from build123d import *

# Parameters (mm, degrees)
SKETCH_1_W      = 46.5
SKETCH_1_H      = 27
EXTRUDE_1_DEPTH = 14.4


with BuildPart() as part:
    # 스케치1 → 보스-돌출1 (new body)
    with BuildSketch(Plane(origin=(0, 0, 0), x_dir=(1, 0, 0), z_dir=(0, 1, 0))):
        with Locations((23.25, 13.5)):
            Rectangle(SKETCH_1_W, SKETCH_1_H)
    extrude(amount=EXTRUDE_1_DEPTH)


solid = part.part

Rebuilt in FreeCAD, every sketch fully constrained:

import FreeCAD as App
import Part
import Sketcher
from FreeCAD import Vector


def add_polygon(sketch, points):
    """Adds a closed chain of lines whose ends are joined by coincident constraints."""
    first, n = sketch.GeometryCount, len(points)
    for a, b in zip(points, points[1:] + points[:1]):
        sketch.addGeometry(Part.LineSegment(App.Vector(*a, 0), App.Vector(*b, 0)), False)
    for i in range(n):
        sketch.addConstraint(Sketcher.Constraint("Coincident", first + i, 2, first + (i + 1) % n, 1))

doc = App.newDocument("Part")
body = doc.addObject("PartDesign::Body", "Body")

# Sketch on XZ plane
sketch1 = body.newObject("Sketcher::SketchObject", "Sketch")
sketch1.AttachmentSupport = (doc.getObject("XZ_Plane"), [""])
sketch1.MapMode = "FlatFace"
add_polygon(sketch1, [(0, -27), (0, 0), (46.5, 0), (46.5, -27)])  # lines 0-3
sketch1.addConstraint([
    Sketcher.Constraint("Vertical", 0),
    Sketcher.Constraint("Horizontal", 1),
    Sketcher.Constraint("Vertical", 2),
    Sketcher.Constraint("Horizontal", 3),
    Sketcher.Constraint("Coincident", 0, 2, -1, 1),
    Sketcher.Constraint("DistanceY", 0, 1, 0, 2, 27.0),
    Sketcher.Constraint("DistanceX", 1, 1, 1, 2, 46.5),
])
pad1 = body.newObject("PartDesign::Pad", "Pad")
pad1.Profile = sketch1
pad1.Length = 14.4
pad1.Reversed = True

doc.recompute()
